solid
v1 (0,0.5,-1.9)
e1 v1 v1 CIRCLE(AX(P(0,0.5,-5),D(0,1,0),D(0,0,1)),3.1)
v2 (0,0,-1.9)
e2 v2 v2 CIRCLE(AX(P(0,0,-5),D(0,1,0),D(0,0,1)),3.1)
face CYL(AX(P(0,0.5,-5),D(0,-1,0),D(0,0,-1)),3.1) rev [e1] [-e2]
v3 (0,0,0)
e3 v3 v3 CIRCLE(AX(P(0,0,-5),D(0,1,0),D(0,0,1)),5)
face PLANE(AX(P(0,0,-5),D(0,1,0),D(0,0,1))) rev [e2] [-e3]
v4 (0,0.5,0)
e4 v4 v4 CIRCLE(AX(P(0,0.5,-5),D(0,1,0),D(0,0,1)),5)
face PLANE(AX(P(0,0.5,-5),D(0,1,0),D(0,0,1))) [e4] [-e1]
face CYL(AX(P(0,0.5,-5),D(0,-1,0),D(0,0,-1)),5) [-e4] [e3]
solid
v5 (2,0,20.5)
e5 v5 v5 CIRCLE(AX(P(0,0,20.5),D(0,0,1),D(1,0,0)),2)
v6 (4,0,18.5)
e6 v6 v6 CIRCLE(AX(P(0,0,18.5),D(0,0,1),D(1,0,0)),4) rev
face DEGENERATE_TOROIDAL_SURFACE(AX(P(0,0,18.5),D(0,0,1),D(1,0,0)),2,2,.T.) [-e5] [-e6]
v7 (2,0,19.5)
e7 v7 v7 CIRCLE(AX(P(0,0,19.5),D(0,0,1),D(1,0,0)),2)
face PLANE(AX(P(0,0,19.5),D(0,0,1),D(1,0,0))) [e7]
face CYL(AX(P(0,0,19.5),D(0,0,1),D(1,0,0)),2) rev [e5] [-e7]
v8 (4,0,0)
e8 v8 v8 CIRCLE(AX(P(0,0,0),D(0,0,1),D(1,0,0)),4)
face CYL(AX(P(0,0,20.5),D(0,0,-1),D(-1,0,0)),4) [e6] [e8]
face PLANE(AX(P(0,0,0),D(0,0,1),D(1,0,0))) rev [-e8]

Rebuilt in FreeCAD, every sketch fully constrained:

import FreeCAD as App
import Part
import Sketcher
from FreeCAD import Vector
Q = App.Units.Quantity


def edges_at(feature, points):
    """Names of the edges that pass closest to the given points."""
    edges = feature.Shape.Edges
    near = lambda p: min(range(len(edges)), key=lambda i: edges[i].distToShape(Part.Vertex(*p))[0])
    return sorted({f"Edge{near(p) + 1}" for p in points})

doc = App.newDocument("Part")
body = doc.addObject("PartDesign::Body", "Body")

sketch1 = body.newObject("Sketcher::SketchObject", "Sketch")
sketch1.AttachmentSupport = (doc.getObject("XY_Plane"), [""])
sketch1.MapMode = "FlatFace"
sketch1.addGeometry(Part.Circle(Vector(0, 0, 0), Vector(0, 0, 1), 4), False)
sketch1.addConstraint([
    Sketcher.Constraint("Coincident", 0, 3, -1, 1),
    Sketcher.Constraint("Diameter", 0, Q("8 mm")),
])
pad1 = body.newObject("PartDesign::Pad", "Pad")
pad1.Profile = sketch1
pad1.Length = 20.5
doc.recompute()

fillet = body.newObject("PartDesign::Fillet", "Fillet")
fillet.Base = (pad1, edges_at(pad1, [(-4, 0, 20.5)]))
fillet.Radius = 2

sketch2 = body.newObject("Sketcher::SketchObject", "Sketch001")
sketch2.AttachmentSupport = (doc.getObject("XY_Plane"), [""])
sketch2.MapMode = "FlatFace"
sketch2.AttachmentOffset = App.Placement(Vector(0, 0, 20.5), App.Rotation())
sketch2.addGeometry(Part.Circle(Vector(0, 0, 0), Vector(0, 0, 1), 2), False)
sketch2.addConstraint([
    Sketcher.Constraint("Coincident", 0, 3, -1, 1),
    Sketcher.Constraint("Diameter", 0, Q("4 mm")),
])
pocket1 = body.newObject("PartDesign::Pocket", "Pocket")
pocket1.Profile = sketch2
pocket1.Length = 1
body2 = doc.addObject("PartDesign::Body", "Body001")

sketch3 = body2.newObject("Sketcher::SketchObject", "Sketch002")
sketch3.AttachmentSupport = (doc.getObject("XZ_Plane001"), [""])
sketch3.MapMode = "FlatFace"
sketch3.addGeometry([
    Part.Circle(Vector(0, -5, 0), Vector(0, 0, 1), 5),
    Part.Circle(Vector(0, -5, 0), Vector(0, 0, 1), 3.1),
], False)
sketch3.addConstraint([
    Sketcher.Constraint("Coincident", 1, 3, 0, 3),
    Sketcher.Constraint("PointOnObject", 0, 3, -2),
    Sketcher.Constraint("Diameter", 0, Q("10 mm")),
    Sketcher.Constraint("Diameter", 1, Q("6.2 mm")),
    Sketcher.Constraint("DistanceY", 0, 3, -1, 1, Q("5 mm")),
])
pad2 = body2.newObject("PartDesign::Pad", "Pad001")
pad2.Profile = sketch3
pad2.Length = 0.5
pad2.Reversed = True

doc.recompute()
